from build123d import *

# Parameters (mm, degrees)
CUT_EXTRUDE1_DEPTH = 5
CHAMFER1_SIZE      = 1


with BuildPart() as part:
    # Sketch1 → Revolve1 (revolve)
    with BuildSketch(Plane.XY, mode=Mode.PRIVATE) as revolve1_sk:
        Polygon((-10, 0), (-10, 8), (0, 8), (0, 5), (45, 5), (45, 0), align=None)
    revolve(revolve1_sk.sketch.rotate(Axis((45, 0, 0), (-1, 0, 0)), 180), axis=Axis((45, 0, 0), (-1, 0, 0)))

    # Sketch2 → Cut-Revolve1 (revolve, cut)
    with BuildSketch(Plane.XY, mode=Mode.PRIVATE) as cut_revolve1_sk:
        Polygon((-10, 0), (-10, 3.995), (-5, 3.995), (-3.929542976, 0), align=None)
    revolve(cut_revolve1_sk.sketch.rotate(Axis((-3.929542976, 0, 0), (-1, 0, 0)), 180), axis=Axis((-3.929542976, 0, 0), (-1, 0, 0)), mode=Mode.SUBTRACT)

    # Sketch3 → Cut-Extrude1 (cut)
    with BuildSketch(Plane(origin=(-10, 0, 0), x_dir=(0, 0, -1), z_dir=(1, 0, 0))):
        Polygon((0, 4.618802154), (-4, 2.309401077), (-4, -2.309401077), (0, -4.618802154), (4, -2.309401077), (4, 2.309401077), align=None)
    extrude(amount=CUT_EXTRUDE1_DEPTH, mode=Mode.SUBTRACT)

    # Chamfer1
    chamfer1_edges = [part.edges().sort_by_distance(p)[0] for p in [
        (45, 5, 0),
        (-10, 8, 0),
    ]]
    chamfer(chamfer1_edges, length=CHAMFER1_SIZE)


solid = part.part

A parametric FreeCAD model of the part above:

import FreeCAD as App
import Part
import Sketcher

V = App.Vector
Q = App.Units.Quantity


def edges_at(feature, points):
    """Names of the edges that pass closest to the given points."""
    edges = feature.Shape.Edges
    near = lambda p: min(range(len(edges)), key=lambda i: edges[i].distToShape(Part.Vertex(*p))[0])
    return sorted({f"Edge{near(p) + 1}" for p in points})

doc = App.newDocument("Part")
body = doc.addObject("PartDesign::Body", "Body")

sketch1 = body.newObject("Sketcher::SketchObject", "Sketch")
sketch1.AttachmentSupport = (doc.getObject("XY_Plane"), [""])
sketch1.MapMode = "FlatFace"
sketch1.addGeometry([
    Part.LineSegment(V(-10, 8, 0), V(-10, 0, 0)),
    Part.LineSegment(V(-10, 0, 0), V(45, 0, 0)),
    Part.LineSegment(V(45, 0, 0), V(45, 5, 0)),
    Part.LineSegment(V(45, 5, 0), V(0, 5, 0)),
    Part.LineSegment(V(0, 5, 0), V(0, 8, 0)),
    Part.LineSegment(V(0, 8, 0), V(-10, 8, 0)),
], False)
sketch1.addConstraint([
    Sketcher.Constraint("Coincident", 0, 2, 1, 1),
    Sketcher.Constraint("Coincident", 1, 2, 2, 1),
    Sketcher.Constraint("Coincident", 2, 2, 3, 1),
    Sketcher.Constraint("Coincident", 3, 2, 4, 1),
    Sketcher.Constraint("Coincident", 4, 2, 5, 1),
    Sketcher.Constraint("Coincident", 5, 2, 0, 1),
    Sketcher.Constraint("Vertical", 0),
    Sketcher.Constraint("Horizontal", 1),
    Sketcher.Constraint("Vertical", 2),
    Sketcher.Constraint("Horizontal", 3),
    Sketcher.Constraint("Vertical", 4),
    Sketcher.Constraint("Horizontal", 5),
    Sketcher.Constraint("PointOnObject", 0, 2, -1),
    Sketcher.Constraint("PointOnObject", 3, 2, -2),
    Sketcher.Constraint("DistanceX", 1, 1, 1, 2, 55.0),
    Sketcher.Constraint("DistanceX", 3, 2, 3, 1, 45.0),
    Sketcher.Constraint("DistanceY", 0, 2, 0, 1, 8.0),
    Sketcher.Constraint("DistanceY", 2, 1, 2, 2, 5.0),
])
revolution = body.newObject("PartDesign::Revolution", "Revolution")
revolution.Profile = sketch1
revolution.ReferenceAxis = (sketch1, ["H_Axis"])
revolution.Angle = 360

sketch2 = body.newObject("Sketcher::SketchObject", "Sketch001")
sketch2.AttachmentSupport = (doc.getObject("XY_Plane"), [""])
sketch2.MapMode = "FlatFace"
sketch2.addGeometry([
    Part.LineSegment(V(-10, 4, 0), V(-10, 0, 0)),
    Part.LineSegment(V(-10, 0, 0), V(-3.9, 0, 0)),
    Part.LineSegment(V(-3.9, 0, 0), V(-5, 4, 0)),
    Part.LineSegment(V(-5, 4, 0), V(-10, 4, 0)),
], False)
sketch2.addConstraint([
    Sketcher.Constraint("Coincident", 0, 2, 1, 1),
    Sketcher.Constraint("Coincident", 1, 2, 2, 1),
    Sketcher.Constraint("Coincident", 2, 2, 3, 1),
    Sketcher.Constraint("Coincident", 3, 2, 0, 1),
    Sketcher.Constraint("Vertical", 0),
    Sketcher.Constraint("Horizontal", 1),
    Sketcher.Constraint("Horizontal", 3),
    Sketcher.Constraint("PointOnObject", 0, 2, -1),
    Sketcher.Constraint("DistanceX", 3, 2, 3, 1, 5.0),
    Sketcher.Constraint("Angle", 2, Q("105 deg")),
    Sketcher.Constraint("DistanceX", 0, 2, -1, 1, 10.0),
    Sketcher.Constraint("DistanceY", 0, 2, 0, 1, 3.995),
])
groove = body.newObject("PartDesign::Groove", "Groove")
groove.Profile = sketch2
groove.ReferenceAxis = (sketch2, ["H_Axis"])
groove.Angle = 360

sketch3 = body.newObject("Sketcher::SketchObject", "Sketch002")
sketch3.AttachmentSupport = (doc.getObject("YZ_Plane"), [""])
sketch3.MapMode = "FlatFace"
sketch3.AttachmentOffset = App.Placement(V(0, 0, -10), App.Rotation())
sketch3.addGeometry([
    Part.LineSegment(V(4.6, 0, 0), V(2.3, 4, 0)),
    Part.LineSegment(V(2.3, 4, 0), V(-2.3, 4, 0)),
    Part.LineSegment(V(-2.3, 4, 0), V(-4.6, 0, 0)),
    Part.LineSegment(V(-4.6, 0, 0), V(-2.3, -4, 0)),
    Part.LineSegment(V(-2.3, -4, 0), V(2.3, -4, 0)),
    Part.LineSegment(V(2.3, -4, 0), V(4.6, 0, 0)),
], False)
sketch3.addConstraint([
    Sketcher.Constraint("Coincident", 0, 2, 1, 1),
    Sketcher.Constraint("Coincident", 1, 2, 2, 1),
    Sketcher.Constraint("Coincident", 2, 2, 3, 1),
    Sketcher.Constraint("Coincident", 3, 2, 4, 1),
    Sketcher.Constraint("Coincident", 4, 2, 5, 1),
    Sketcher.Constraint("Coincident", 5, 2, 0, 1),
    Sketcher.Constraint("Horizontal", 1),
    Sketcher.Constraint("Horizontal", 4),
    Sketcher.Constraint("Symmetric", 0, 2, 3, 2, -1, 1),
    Sketcher.Constraint("Symmetric", 2, 2, 5, 2, -1, 1),
    Sketcher.Constraint("PointOnObject", 2, 2, -1),
    Sketcher.Constraint("Parallel", 2, 5),
    Sketcher.Constraint("Vertical", 1, 2, 3, 2),
    Sketcher.Constraint("Angle", 0, Q("120 deg")),
    Sketcher.Constraint("DistanceY", -1, 1, 0, 2, 4.0),
    Sketcher.Constraint("DistanceX", -1, 1, 0, 2, 2.309401),
])
pocket1 = body.newObject("PartDesign::Pocket", "Pocket")
pocket1.Profile = sketch3
pocket1.Length = 5
pocket1.Reversed = True
doc.recompute()

chamfer = body.newObject("PartDesign::Chamfer", "Chamfer")
chamfer.Base = (pocket1, edges_at(pocket1, [(45, 5, 0), (-10, 8, 0)]))
chamfer.Size = 1

doc.recompute()
